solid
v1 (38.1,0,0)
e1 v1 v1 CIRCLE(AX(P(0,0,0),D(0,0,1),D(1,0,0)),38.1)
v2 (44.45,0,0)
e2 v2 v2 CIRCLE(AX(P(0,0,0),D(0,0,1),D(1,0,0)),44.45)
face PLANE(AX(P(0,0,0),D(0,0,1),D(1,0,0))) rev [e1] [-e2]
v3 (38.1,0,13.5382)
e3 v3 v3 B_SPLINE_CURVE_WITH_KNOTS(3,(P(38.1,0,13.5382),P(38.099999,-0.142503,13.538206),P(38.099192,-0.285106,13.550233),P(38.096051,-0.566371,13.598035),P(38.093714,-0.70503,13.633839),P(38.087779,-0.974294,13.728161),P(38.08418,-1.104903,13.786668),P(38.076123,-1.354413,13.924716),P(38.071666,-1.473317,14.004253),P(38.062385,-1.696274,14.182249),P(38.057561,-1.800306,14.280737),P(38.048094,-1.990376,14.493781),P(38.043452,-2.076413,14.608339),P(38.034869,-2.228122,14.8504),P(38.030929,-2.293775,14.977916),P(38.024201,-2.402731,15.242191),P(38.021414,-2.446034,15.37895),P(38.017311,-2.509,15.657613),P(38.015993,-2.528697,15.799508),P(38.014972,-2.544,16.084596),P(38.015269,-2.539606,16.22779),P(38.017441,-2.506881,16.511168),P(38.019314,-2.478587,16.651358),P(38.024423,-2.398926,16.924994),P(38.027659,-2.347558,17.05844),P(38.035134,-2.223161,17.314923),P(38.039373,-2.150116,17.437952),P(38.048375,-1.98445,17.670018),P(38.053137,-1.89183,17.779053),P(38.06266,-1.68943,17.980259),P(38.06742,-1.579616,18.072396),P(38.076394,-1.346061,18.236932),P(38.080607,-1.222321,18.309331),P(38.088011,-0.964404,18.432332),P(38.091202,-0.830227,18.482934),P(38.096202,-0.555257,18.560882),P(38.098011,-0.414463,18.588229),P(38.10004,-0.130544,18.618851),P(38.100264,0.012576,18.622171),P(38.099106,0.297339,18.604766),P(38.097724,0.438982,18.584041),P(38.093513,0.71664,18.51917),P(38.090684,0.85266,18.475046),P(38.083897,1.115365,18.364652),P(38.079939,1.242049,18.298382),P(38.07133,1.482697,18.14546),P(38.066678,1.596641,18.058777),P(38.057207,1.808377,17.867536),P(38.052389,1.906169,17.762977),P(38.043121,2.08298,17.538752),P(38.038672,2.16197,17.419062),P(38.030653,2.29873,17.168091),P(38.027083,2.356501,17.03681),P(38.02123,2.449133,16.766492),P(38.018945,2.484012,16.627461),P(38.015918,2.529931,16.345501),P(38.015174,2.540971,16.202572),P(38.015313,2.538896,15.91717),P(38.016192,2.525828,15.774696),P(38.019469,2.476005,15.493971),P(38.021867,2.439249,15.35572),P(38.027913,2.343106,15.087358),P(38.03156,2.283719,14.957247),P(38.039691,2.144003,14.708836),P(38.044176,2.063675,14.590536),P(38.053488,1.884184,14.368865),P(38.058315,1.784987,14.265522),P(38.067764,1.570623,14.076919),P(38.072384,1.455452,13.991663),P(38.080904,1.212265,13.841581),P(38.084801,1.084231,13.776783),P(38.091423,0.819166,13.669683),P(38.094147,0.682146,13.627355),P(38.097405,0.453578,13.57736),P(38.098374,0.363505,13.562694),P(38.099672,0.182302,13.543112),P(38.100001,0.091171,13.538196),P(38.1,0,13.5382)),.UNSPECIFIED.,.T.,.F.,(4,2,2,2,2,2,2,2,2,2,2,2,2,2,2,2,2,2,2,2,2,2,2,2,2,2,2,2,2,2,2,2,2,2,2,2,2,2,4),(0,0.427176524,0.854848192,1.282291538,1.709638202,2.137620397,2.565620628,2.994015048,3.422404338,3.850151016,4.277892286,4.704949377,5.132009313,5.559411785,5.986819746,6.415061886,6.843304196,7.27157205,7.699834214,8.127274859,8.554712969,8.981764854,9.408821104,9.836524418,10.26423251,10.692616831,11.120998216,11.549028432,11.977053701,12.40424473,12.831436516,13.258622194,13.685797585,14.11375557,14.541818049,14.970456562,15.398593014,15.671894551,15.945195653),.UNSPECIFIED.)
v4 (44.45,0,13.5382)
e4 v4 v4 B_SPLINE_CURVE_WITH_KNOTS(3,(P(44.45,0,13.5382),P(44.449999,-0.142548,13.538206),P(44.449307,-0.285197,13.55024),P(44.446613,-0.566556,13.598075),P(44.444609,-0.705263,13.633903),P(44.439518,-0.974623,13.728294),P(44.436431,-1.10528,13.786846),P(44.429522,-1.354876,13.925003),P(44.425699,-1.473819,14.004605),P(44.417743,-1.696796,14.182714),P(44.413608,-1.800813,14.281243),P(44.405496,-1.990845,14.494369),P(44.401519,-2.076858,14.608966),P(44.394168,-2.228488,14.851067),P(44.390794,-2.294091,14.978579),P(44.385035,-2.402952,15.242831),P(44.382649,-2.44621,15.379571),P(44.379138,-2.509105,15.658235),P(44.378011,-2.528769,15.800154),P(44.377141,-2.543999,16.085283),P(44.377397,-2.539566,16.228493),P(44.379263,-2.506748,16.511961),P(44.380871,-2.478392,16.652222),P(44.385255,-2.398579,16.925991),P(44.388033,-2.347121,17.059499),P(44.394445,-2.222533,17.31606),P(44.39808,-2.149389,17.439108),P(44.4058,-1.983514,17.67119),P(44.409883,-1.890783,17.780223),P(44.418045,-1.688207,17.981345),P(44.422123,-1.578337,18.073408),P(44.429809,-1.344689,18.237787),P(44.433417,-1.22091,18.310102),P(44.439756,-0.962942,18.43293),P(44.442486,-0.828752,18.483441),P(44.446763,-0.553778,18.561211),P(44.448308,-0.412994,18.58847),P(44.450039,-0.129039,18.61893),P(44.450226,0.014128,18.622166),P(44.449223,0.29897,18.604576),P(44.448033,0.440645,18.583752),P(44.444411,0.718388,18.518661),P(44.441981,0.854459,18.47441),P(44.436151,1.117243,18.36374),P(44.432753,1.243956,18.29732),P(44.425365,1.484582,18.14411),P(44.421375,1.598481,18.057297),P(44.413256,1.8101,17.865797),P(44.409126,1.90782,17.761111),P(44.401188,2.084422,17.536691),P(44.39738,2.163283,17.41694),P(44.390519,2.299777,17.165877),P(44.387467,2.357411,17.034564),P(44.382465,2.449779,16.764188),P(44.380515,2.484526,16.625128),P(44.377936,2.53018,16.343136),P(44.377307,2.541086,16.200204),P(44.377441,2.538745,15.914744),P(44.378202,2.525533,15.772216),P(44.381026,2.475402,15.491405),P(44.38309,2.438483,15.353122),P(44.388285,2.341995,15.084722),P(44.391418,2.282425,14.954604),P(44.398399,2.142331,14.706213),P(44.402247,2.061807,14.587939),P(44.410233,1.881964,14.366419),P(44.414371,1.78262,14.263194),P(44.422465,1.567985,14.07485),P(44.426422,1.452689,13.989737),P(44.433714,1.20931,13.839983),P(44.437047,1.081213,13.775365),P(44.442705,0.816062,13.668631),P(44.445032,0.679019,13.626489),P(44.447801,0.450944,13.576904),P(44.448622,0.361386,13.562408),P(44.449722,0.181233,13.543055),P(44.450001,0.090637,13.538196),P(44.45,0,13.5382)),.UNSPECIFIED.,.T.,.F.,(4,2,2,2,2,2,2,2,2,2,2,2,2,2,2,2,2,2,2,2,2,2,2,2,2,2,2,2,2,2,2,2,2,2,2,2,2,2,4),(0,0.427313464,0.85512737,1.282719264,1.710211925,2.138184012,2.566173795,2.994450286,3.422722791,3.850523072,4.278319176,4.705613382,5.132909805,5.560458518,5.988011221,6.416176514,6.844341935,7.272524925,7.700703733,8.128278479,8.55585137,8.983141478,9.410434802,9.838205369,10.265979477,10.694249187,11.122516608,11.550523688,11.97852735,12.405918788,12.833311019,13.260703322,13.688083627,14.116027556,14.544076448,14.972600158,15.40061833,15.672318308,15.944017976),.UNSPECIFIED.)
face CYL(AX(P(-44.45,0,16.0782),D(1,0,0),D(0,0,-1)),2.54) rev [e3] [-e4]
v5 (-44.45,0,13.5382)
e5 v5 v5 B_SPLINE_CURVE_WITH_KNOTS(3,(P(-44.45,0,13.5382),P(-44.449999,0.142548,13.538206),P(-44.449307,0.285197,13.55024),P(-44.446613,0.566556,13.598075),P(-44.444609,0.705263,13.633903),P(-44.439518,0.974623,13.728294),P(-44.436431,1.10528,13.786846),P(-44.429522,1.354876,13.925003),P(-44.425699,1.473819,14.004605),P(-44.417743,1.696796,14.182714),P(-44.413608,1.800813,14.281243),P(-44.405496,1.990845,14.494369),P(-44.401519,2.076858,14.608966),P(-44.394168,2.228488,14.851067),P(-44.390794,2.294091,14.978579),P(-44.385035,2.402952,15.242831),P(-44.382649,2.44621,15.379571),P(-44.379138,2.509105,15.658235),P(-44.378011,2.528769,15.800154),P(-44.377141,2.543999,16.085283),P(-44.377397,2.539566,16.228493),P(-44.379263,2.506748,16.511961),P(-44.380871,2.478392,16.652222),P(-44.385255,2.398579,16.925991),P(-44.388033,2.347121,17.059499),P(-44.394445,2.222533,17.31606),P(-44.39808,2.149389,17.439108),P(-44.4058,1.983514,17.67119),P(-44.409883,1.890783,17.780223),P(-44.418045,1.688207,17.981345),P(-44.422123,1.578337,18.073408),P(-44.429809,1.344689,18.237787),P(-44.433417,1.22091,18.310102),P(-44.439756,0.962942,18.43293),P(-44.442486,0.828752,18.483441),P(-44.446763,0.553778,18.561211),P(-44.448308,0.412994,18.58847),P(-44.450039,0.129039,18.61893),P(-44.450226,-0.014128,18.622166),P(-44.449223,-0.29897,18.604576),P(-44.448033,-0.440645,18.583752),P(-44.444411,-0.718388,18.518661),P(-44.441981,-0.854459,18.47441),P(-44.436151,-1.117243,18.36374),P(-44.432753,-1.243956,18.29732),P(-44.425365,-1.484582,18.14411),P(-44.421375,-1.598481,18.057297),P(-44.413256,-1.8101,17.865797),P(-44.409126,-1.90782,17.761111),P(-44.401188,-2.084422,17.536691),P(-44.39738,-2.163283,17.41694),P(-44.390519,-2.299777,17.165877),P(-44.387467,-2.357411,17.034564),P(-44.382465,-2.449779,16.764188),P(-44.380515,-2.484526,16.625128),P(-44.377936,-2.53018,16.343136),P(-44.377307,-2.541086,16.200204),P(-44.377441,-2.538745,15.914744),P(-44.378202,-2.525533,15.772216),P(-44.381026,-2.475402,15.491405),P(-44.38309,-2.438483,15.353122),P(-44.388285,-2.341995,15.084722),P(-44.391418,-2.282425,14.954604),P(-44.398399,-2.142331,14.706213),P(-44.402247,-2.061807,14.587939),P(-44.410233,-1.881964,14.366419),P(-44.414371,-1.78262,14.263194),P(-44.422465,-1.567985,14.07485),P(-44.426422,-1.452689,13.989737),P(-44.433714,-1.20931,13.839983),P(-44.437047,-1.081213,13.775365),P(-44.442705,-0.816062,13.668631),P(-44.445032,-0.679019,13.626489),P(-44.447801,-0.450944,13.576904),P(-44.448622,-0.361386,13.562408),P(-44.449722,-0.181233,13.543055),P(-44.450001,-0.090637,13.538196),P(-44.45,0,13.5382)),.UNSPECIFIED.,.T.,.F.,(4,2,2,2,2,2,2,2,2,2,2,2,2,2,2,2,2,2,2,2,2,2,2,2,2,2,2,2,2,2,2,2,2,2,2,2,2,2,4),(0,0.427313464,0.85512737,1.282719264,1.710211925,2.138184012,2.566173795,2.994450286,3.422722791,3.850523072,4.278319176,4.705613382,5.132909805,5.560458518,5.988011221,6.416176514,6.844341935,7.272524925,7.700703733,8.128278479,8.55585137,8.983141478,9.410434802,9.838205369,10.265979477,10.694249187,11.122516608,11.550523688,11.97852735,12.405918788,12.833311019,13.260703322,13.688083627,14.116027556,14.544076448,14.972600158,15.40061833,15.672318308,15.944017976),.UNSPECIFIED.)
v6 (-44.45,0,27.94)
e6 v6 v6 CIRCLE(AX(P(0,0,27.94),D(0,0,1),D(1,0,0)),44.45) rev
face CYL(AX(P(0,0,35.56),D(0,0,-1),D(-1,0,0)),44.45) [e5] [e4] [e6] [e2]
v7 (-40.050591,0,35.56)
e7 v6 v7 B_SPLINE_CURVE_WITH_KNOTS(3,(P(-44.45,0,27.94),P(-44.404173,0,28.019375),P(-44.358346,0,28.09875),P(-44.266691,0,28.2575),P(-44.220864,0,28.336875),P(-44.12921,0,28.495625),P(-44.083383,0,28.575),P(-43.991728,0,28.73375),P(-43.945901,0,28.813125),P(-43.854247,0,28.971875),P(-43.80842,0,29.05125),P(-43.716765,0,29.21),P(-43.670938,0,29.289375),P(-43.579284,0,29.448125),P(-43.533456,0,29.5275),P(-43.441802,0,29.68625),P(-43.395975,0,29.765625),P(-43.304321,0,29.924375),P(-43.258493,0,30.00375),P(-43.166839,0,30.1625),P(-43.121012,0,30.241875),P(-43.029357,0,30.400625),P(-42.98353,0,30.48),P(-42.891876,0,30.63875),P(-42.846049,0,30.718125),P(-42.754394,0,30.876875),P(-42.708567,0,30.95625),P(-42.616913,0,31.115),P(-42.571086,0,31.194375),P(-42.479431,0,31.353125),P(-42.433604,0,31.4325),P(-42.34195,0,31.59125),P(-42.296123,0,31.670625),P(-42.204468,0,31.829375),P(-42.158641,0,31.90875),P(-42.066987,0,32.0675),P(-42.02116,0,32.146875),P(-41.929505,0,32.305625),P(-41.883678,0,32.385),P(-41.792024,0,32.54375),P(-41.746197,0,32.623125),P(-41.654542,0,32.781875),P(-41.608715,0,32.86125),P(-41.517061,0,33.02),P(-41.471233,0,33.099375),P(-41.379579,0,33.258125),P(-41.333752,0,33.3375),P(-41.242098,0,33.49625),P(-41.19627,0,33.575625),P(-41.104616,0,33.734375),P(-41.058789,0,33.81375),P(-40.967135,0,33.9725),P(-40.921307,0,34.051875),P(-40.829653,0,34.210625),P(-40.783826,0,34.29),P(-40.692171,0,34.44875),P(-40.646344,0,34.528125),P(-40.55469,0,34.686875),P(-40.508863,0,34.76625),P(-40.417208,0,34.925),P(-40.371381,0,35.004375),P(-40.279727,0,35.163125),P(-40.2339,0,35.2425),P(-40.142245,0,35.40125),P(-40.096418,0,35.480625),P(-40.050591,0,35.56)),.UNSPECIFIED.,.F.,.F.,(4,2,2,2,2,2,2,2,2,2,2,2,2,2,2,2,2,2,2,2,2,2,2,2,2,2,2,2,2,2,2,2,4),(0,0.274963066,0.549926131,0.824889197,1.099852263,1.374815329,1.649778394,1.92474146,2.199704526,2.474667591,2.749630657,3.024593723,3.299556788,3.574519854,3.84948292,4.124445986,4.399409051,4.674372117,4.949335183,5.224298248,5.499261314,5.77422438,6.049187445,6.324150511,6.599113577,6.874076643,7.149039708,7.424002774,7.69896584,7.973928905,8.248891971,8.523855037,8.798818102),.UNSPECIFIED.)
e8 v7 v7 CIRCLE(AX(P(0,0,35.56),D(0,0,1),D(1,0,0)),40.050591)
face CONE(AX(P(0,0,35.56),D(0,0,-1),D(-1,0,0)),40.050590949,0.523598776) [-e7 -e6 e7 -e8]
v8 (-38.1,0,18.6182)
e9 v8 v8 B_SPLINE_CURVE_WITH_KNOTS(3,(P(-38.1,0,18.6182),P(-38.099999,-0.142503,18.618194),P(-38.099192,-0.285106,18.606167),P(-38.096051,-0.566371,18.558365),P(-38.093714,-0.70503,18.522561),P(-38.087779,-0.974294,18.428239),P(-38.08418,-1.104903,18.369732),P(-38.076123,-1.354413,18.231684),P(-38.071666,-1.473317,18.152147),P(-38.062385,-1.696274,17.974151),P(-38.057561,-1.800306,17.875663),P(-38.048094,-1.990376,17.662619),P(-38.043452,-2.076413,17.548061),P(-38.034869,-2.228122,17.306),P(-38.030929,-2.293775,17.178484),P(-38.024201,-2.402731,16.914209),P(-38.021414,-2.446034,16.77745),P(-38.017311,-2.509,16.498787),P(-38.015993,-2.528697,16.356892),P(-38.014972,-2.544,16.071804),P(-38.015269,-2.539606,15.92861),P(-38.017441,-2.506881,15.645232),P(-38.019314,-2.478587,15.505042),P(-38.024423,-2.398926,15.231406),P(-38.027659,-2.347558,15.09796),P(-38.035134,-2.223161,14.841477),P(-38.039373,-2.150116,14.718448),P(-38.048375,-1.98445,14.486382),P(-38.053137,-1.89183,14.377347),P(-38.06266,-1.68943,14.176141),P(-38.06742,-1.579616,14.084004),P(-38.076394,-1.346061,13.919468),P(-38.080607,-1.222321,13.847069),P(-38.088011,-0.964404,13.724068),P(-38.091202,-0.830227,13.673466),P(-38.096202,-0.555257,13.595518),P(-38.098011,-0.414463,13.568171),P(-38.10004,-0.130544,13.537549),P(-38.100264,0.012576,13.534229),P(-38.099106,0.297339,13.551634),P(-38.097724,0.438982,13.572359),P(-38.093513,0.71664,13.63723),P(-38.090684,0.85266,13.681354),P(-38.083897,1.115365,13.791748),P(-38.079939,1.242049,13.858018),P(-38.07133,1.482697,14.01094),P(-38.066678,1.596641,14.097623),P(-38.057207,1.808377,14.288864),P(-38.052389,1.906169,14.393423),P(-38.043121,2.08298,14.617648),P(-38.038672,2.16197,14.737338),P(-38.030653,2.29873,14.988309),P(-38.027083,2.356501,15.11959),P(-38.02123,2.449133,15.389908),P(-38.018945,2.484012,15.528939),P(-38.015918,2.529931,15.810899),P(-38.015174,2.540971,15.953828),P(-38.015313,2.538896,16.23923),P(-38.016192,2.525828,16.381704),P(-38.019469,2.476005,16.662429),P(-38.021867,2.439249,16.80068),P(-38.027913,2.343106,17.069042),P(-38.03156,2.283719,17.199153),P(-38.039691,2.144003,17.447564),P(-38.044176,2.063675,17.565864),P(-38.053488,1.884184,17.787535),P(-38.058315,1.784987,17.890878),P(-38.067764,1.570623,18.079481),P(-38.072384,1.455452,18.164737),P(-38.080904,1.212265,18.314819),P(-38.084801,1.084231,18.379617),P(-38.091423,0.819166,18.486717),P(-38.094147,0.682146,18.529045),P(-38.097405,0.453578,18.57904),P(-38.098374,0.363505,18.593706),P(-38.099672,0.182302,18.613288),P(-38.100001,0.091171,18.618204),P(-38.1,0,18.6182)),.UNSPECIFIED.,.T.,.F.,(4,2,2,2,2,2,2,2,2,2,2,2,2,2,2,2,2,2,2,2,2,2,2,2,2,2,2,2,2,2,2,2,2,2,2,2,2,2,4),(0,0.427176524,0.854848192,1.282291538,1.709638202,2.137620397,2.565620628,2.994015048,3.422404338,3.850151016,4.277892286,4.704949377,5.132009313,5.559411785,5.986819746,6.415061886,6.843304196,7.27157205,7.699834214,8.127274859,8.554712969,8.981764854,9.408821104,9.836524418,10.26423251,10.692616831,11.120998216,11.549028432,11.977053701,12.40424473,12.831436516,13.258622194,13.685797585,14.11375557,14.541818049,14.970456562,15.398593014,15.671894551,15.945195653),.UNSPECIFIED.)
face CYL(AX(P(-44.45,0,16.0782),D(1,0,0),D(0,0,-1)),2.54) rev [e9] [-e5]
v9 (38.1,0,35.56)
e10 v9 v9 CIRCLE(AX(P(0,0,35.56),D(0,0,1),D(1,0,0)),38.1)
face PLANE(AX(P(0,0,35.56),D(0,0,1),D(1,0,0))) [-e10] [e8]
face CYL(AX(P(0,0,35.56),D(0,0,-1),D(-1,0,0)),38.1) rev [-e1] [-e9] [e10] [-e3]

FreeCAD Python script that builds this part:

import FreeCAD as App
import Part
import Sketcher
from FreeCAD import Vector
Q = App.Units.Quantity


def edges_at(feature, points):
    """Names of the edges that pass closest to the given points."""
    edges = feature.Shape.Edges
    near = lambda p: min(range(len(edges)), key=lambda i: edges[i].distToShape(Part.Vertex(*p))[0])
    return sorted({f"Edge{near(p) + 1}" for p in points})

doc = App.newDocument("Part")
body = doc.addObject("PartDesign::Body", "Body")

# Sketch on XY plane
sketch1 = body.newObject("Sketcher::SketchObject", "Sketch")
sketch1.AttachmentSupport = (doc.getObject("XY_Plane"), [""])
sketch1.MapMode = "FlatFace"
sketch1.addGeometry([
    Part.Circle(Vector(0, 0, 0), Vector(0, 0, 1), 44),
    Part.Circle(Vector(0, 0, 0), Vector(0, 0, 1), 38),
], False)
sketch1.addConstraint([
    Sketcher.Constraint("Coincident", 0, 3, -1, 1),
    Sketcher.Constraint("Coincident", 1, 3, -1, 1),
    Sketcher.Constraint("Diameter", 1, Q("3 in")),
    Sketcher.Constraint("Diameter", 0, Q("3.5 in")),
])
pad1 = body.newObject("PartDesign::Pad", "Pad")
pad1.Profile = sketch1
pad1.Length = Q("1.4 in")
doc.recompute()

chamfer = body.newObject("PartDesign::Chamfer", "Chamfer")
chamfer.Base = (pad1, edges_at(pad1, [(-44.45, 0, 35.56)]))
chamfer.ChamferType = "Two distances"
chamfer.Size = Q("0.3 in")
chamfer.Size2 = 4.399409

# Sketch on YZ plane
sketch2 = body.newObject("Sketcher::SketchObject", "Sketch001")
sketch2.AttachmentSupport = (doc.getObject("YZ_Plane"), [""])
sketch2.MapMode = "FlatFace"
sketch2.addGeometry(Part.Circle(Vector(0, 16.1, 0), Vector(0, 0, 1), 2.5), False)
sketch2.addConstraint([
    Sketcher.Constraint("PointOnObject", 0, 3, -2),
    Sketcher.Constraint("Diameter", 0, Q("0.2 in")),
    Sketcher.Constraint("DistanceY", -1, 1, 0, 3, Q("0.633 in")),
])
pocket1 = body.newObject("PartDesign::Pocket", "Pocket")
pocket1.Profile = sketch2
pocket1.Type = "ThroughAll"
pocket1.Midplane = True

doc.recompute()
